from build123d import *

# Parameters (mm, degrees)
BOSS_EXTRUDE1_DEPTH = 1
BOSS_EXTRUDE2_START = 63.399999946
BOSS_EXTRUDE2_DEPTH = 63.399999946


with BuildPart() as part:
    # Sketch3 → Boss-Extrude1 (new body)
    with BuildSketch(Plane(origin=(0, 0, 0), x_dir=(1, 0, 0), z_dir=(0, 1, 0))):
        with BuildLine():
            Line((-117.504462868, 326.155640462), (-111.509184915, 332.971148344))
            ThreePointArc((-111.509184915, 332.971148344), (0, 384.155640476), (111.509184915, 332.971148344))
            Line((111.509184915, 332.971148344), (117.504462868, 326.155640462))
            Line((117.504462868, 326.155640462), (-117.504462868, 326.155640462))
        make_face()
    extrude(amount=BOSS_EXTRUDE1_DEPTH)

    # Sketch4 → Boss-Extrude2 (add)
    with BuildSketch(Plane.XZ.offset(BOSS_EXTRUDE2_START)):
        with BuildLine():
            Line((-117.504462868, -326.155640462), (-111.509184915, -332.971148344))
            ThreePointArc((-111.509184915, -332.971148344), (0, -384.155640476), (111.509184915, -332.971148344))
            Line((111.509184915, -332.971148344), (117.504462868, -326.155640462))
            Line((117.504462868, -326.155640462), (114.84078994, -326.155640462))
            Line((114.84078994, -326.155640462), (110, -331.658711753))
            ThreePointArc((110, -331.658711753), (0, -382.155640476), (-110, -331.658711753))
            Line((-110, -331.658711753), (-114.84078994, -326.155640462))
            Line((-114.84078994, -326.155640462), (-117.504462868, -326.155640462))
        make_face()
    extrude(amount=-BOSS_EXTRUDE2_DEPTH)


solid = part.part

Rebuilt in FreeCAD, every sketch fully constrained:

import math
import FreeCAD as App
import Part
import Sketcher

V = App.Vector
Q = App.Units.Quantity

doc = App.newDocument("Part")
params = doc.addObject("Spreadsheet::Sheet", "Params")
for row, (alias, value) in enumerate([
    ("pad1_length", "1 mm"),
    ("pad2_length", "63.4 mm"),
], start=1):
    params.set(f"A{row}", alias)
    params.set(f"B{row}", "=" + value)
    params.setAlias(f"B{row}", alias)

body = doc.addObject("PartDesign::Body", "Body")

# Sketch on XZ plane
sketch1 = doc.addObject("Sketcher::SketchObject", "Sketch")
body.addObject(sketch1)
sketch1.AttachmentSupport = (doc.XZ_Plane, [""])
sketch1.MapMode = "FlatFace"
sketch1.addGeometry([
    Part.LineSegment(V(-111.509185, -332.971148, 0), V(-117.504463, -326.15564, 0)),
    Part.LineSegment(V(-117.504463, -326.15564, 0), V(117.504463, -326.15564, 0)),
    Part.LineSegment(V(117.504463, -326.15564, 0), V(111.509185, -332.971148, 0)),
    Part.ArcOfCircle(Part.Circle(V(0, -237.097909, 0), V(0, 0, 1), 147.057731), math.radians(-139.311754), math.radians(-40.688246)),
], False)
sketch1.addConstraint([
    Sketcher.Constraint("Coincident", 0, 2, 1, 1),
    Sketcher.Constraint("Coincident", 1, 2, 2, 1),
    Sketcher.Constraint("Coincident", 2, 2, 3, 2),
    Sketcher.Constraint("Coincident", 3, 1, 0, 1),
    Sketcher.Constraint("Horizontal", 1),
    Sketcher.Constraint("Symmetric", 2, 2, 3, 1, -2),
    Sketcher.Constraint("Equal", 0, 2),
    Sketcher.Constraint("Radius", 3, Q("147.057731 mm")),
    Sketcher.Constraint("Distance", 0, Q("9.077142 mm")),
    Sketcher.Constraint("DistanceX", 1, 1, 1, 2, Q("235.008926 mm")),
    Sketcher.Constraint("DistanceY", 3, 3, -1, 1, Q("237.097909 mm")),
    Sketcher.Constraint("DistanceY", 0, 2, -1, 1, Q("326.15564 mm")),
])
pad1 = doc.addObject("PartDesign::Pad", "Pad")
body.addObject(pad1)
pad1.Profile = sketch1
pad1.setExpression("Length", "Params.pad1_length")
pad1.Reversed = True

# Sketch on XZ plane
sketch2 = doc.addObject("Sketcher::SketchObject", "Sketch001")
body.addObject(sketch2)
sketch2.AttachmentSupport = (doc.XZ_Plane, [""])
sketch2.MapMode = "FlatFace"
sketch2.AttachmentOffset = App.Placement(V(0, 0, 63.4), App.Rotation())
sketch2.addGeometry([
    Part.LineSegment(V(-117.504463, -326.15564, 0), V(-111.509185, -332.971148, 0)),  # 0
    Part.ArcOfCircle(Part.Circle(V(0, -237.097909, 0), V(0, 0, 1), 147.057731), math.radians(-139.311754), math.radians(-40.688246)),  # 1
    Part.LineSegment(V(111.509185, -332.971148, 0), V(117.504463, -326.15564, 0)),  # 2
    Part.LineSegment(V(117.504463, -326.15564, 0), V(114.84079, -326.15564, 0)),  # 3
    Part.LineSegment(V(114.84079, -326.15564, 0), V(110, -331.658712, 0)),  # 4
    Part.ArcOfCircle(Part.Circle(V(0, -237.097909, 0), V(0, 0, 1), 145.057731), math.radians(-139.316208), math.radians(-40.683792)),  # 5
    Part.LineSegment(V(-110, -331.658712, 0), V(-114.84079, -326.15564, 0)),  # 6
    Part.LineSegment(V(-114.84079, -326.15564, 0), V(-117.504463, -326.15564, 0)),  # 7
], False)
sketch2.addConstraint([
    Sketcher.Constraint("Coincident", 0, 2, 1, 1),
    Sketcher.Constraint("Coincident", 1, 2, 2, 1),
    Sketcher.Constraint("Coincident", 2, 2, 3, 1),
    Sketcher.Constraint("Coincident", 3, 2, 4, 1),
    Sketcher.Constraint("Coincident", 4, 2, 5, 2),
    Sketcher.Constraint("Coincident", 5, 1, 6, 1),
    Sketcher.Constraint("Coincident", 6, 2, 7, 1),
    Sketcher.Constraint("Coincident", 7, 2, 0, 1),
    Sketcher.Constraint("Horizontal", 3),
    Sketcher.Constraint("Horizontal", 7),
    Sketcher.Constraint("Coincident", 5, 3, 1, 3),
    Sketcher.Constraint("Symmetric", 0, 2, 1, 2, -2),
    Sketcher.Constraint("Symmetric", 3, 2, 6, 2, -2),
    Sketcher.Constraint("Parallel", 2, 4),
    Sketcher.Constraint("Parallel", 0, 6),
    Sketcher.Constraint("Horizontal", 4, 2, 5, 1),
    Sketcher.Constraint("DistanceX", -1, 1, 4, 2, Q("110 mm")),
    Sketcher.Constraint("Radius", 1, Q("147.057731 mm")),
    Sketcher.Constraint("Radius", 5, Q("145.057731 mm")),
    Sketcher.Constraint("Distance", 0, Q("9.077142 mm")),
    Sketcher.Constraint("Distance", 4, Q("7.329191 mm")),
    Sketcher.Constraint("DistanceX", 3, 2, 3, 1, Q("2.663673 mm")),
    Sketcher.Constraint("DistanceY", 1, 3, -1, 1, Q("237.097909 mm")),
])
pad2 = doc.addObject("PartDesign::Pad", "Pad001")
body.addObject(pad2)
pad2.Profile = sketch2
pad2.setExpression("Length", "Params.pad2_length")
pad2.Reversed = True

doc.recompute()
